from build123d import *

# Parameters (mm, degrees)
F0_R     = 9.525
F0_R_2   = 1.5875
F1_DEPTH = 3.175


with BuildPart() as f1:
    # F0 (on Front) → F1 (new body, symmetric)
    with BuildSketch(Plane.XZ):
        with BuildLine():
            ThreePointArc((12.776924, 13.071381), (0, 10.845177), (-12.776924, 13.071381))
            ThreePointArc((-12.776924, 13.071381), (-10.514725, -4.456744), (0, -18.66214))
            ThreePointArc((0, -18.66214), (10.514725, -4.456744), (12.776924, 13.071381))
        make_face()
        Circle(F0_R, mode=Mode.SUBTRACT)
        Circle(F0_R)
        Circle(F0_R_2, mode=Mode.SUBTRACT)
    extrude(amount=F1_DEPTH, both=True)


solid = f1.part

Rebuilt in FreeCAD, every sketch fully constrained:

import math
import FreeCAD as App
import Part
import Sketcher
from FreeCAD import Vector
Q = App.Units.Quantity

doc = App.newDocument("Part")
body = doc.addObject("PartDesign::Body", "Body")

# Sketch on XZ plane
sketch1 = body.newObject("Sketcher::SketchObject", "Sketch")
sketch1.AttachmentSupport = (doc.getObject("XZ_Plane"), [""])
sketch1.MapMode = "FlatFace"
sketch1.addGeometry([
    Part.ArcOfCircle(Part.Circle(Vector(0, 48.623784, 0), Vector(0, 0, 1), 37.778607), math.radians(-109.767567), math.radians(-70.232433)),
    Part.ArcOfCircle(Part.Circle(Vector(22.054713, 8.656747, 0), Vector(0, 0, 1), 35.110283), math.radians(172.776727), math.radians(231.085839)),
    Part.ArcOfCircle(Part.Circle(Vector(-22.054713, 8.656747, 0), Vector(0, 0, 1), 35.110283), math.radians(-51.085839), math.radians(7.223273)),
    Part.Circle(Vector(0, 0, 0), Vector(0, 0, 1), 1.5875),
], False)
sketch1.addConstraint([
    Sketcher.Constraint("Coincident", 0, 1, 1, 1),
    Sketcher.Constraint("Coincident", 1, 2, 2, 1),
    Sketcher.Constraint("Coincident", 2, 2, 0, 2),
    Sketcher.Constraint("Coincident", 3, 3, -1, 1),
    Sketcher.Constraint("Equal", 1, 2),
    Sketcher.Constraint("Symmetric", 1, 3, 2, 3, -2),
    Sketcher.Constraint("PointOnObject", 0, 3, -2),
    Sketcher.Constraint("Diameter", 3, Q("0.125 in")),
    Sketcher.Constraint("Radius", 0, 37.778607),
    Sketcher.Constraint("Radius", 1, 35.110283),
    Sketcher.Constraint("DistanceY", -1, 1, 0, 1, 13.071381),
    Sketcher.Constraint("DistanceY", 1, 2, -1, 1, 18.66214),
    Sketcher.Constraint("DistanceX", 2, 3, 0, 1, 9.277789),
])
pad1 = body.newObject("PartDesign::Pad", "Pad")
pad1.Profile = sketch1
pad1.Length = Q("0.25 in")
pad1.Midplane = True

doc.recompute()
